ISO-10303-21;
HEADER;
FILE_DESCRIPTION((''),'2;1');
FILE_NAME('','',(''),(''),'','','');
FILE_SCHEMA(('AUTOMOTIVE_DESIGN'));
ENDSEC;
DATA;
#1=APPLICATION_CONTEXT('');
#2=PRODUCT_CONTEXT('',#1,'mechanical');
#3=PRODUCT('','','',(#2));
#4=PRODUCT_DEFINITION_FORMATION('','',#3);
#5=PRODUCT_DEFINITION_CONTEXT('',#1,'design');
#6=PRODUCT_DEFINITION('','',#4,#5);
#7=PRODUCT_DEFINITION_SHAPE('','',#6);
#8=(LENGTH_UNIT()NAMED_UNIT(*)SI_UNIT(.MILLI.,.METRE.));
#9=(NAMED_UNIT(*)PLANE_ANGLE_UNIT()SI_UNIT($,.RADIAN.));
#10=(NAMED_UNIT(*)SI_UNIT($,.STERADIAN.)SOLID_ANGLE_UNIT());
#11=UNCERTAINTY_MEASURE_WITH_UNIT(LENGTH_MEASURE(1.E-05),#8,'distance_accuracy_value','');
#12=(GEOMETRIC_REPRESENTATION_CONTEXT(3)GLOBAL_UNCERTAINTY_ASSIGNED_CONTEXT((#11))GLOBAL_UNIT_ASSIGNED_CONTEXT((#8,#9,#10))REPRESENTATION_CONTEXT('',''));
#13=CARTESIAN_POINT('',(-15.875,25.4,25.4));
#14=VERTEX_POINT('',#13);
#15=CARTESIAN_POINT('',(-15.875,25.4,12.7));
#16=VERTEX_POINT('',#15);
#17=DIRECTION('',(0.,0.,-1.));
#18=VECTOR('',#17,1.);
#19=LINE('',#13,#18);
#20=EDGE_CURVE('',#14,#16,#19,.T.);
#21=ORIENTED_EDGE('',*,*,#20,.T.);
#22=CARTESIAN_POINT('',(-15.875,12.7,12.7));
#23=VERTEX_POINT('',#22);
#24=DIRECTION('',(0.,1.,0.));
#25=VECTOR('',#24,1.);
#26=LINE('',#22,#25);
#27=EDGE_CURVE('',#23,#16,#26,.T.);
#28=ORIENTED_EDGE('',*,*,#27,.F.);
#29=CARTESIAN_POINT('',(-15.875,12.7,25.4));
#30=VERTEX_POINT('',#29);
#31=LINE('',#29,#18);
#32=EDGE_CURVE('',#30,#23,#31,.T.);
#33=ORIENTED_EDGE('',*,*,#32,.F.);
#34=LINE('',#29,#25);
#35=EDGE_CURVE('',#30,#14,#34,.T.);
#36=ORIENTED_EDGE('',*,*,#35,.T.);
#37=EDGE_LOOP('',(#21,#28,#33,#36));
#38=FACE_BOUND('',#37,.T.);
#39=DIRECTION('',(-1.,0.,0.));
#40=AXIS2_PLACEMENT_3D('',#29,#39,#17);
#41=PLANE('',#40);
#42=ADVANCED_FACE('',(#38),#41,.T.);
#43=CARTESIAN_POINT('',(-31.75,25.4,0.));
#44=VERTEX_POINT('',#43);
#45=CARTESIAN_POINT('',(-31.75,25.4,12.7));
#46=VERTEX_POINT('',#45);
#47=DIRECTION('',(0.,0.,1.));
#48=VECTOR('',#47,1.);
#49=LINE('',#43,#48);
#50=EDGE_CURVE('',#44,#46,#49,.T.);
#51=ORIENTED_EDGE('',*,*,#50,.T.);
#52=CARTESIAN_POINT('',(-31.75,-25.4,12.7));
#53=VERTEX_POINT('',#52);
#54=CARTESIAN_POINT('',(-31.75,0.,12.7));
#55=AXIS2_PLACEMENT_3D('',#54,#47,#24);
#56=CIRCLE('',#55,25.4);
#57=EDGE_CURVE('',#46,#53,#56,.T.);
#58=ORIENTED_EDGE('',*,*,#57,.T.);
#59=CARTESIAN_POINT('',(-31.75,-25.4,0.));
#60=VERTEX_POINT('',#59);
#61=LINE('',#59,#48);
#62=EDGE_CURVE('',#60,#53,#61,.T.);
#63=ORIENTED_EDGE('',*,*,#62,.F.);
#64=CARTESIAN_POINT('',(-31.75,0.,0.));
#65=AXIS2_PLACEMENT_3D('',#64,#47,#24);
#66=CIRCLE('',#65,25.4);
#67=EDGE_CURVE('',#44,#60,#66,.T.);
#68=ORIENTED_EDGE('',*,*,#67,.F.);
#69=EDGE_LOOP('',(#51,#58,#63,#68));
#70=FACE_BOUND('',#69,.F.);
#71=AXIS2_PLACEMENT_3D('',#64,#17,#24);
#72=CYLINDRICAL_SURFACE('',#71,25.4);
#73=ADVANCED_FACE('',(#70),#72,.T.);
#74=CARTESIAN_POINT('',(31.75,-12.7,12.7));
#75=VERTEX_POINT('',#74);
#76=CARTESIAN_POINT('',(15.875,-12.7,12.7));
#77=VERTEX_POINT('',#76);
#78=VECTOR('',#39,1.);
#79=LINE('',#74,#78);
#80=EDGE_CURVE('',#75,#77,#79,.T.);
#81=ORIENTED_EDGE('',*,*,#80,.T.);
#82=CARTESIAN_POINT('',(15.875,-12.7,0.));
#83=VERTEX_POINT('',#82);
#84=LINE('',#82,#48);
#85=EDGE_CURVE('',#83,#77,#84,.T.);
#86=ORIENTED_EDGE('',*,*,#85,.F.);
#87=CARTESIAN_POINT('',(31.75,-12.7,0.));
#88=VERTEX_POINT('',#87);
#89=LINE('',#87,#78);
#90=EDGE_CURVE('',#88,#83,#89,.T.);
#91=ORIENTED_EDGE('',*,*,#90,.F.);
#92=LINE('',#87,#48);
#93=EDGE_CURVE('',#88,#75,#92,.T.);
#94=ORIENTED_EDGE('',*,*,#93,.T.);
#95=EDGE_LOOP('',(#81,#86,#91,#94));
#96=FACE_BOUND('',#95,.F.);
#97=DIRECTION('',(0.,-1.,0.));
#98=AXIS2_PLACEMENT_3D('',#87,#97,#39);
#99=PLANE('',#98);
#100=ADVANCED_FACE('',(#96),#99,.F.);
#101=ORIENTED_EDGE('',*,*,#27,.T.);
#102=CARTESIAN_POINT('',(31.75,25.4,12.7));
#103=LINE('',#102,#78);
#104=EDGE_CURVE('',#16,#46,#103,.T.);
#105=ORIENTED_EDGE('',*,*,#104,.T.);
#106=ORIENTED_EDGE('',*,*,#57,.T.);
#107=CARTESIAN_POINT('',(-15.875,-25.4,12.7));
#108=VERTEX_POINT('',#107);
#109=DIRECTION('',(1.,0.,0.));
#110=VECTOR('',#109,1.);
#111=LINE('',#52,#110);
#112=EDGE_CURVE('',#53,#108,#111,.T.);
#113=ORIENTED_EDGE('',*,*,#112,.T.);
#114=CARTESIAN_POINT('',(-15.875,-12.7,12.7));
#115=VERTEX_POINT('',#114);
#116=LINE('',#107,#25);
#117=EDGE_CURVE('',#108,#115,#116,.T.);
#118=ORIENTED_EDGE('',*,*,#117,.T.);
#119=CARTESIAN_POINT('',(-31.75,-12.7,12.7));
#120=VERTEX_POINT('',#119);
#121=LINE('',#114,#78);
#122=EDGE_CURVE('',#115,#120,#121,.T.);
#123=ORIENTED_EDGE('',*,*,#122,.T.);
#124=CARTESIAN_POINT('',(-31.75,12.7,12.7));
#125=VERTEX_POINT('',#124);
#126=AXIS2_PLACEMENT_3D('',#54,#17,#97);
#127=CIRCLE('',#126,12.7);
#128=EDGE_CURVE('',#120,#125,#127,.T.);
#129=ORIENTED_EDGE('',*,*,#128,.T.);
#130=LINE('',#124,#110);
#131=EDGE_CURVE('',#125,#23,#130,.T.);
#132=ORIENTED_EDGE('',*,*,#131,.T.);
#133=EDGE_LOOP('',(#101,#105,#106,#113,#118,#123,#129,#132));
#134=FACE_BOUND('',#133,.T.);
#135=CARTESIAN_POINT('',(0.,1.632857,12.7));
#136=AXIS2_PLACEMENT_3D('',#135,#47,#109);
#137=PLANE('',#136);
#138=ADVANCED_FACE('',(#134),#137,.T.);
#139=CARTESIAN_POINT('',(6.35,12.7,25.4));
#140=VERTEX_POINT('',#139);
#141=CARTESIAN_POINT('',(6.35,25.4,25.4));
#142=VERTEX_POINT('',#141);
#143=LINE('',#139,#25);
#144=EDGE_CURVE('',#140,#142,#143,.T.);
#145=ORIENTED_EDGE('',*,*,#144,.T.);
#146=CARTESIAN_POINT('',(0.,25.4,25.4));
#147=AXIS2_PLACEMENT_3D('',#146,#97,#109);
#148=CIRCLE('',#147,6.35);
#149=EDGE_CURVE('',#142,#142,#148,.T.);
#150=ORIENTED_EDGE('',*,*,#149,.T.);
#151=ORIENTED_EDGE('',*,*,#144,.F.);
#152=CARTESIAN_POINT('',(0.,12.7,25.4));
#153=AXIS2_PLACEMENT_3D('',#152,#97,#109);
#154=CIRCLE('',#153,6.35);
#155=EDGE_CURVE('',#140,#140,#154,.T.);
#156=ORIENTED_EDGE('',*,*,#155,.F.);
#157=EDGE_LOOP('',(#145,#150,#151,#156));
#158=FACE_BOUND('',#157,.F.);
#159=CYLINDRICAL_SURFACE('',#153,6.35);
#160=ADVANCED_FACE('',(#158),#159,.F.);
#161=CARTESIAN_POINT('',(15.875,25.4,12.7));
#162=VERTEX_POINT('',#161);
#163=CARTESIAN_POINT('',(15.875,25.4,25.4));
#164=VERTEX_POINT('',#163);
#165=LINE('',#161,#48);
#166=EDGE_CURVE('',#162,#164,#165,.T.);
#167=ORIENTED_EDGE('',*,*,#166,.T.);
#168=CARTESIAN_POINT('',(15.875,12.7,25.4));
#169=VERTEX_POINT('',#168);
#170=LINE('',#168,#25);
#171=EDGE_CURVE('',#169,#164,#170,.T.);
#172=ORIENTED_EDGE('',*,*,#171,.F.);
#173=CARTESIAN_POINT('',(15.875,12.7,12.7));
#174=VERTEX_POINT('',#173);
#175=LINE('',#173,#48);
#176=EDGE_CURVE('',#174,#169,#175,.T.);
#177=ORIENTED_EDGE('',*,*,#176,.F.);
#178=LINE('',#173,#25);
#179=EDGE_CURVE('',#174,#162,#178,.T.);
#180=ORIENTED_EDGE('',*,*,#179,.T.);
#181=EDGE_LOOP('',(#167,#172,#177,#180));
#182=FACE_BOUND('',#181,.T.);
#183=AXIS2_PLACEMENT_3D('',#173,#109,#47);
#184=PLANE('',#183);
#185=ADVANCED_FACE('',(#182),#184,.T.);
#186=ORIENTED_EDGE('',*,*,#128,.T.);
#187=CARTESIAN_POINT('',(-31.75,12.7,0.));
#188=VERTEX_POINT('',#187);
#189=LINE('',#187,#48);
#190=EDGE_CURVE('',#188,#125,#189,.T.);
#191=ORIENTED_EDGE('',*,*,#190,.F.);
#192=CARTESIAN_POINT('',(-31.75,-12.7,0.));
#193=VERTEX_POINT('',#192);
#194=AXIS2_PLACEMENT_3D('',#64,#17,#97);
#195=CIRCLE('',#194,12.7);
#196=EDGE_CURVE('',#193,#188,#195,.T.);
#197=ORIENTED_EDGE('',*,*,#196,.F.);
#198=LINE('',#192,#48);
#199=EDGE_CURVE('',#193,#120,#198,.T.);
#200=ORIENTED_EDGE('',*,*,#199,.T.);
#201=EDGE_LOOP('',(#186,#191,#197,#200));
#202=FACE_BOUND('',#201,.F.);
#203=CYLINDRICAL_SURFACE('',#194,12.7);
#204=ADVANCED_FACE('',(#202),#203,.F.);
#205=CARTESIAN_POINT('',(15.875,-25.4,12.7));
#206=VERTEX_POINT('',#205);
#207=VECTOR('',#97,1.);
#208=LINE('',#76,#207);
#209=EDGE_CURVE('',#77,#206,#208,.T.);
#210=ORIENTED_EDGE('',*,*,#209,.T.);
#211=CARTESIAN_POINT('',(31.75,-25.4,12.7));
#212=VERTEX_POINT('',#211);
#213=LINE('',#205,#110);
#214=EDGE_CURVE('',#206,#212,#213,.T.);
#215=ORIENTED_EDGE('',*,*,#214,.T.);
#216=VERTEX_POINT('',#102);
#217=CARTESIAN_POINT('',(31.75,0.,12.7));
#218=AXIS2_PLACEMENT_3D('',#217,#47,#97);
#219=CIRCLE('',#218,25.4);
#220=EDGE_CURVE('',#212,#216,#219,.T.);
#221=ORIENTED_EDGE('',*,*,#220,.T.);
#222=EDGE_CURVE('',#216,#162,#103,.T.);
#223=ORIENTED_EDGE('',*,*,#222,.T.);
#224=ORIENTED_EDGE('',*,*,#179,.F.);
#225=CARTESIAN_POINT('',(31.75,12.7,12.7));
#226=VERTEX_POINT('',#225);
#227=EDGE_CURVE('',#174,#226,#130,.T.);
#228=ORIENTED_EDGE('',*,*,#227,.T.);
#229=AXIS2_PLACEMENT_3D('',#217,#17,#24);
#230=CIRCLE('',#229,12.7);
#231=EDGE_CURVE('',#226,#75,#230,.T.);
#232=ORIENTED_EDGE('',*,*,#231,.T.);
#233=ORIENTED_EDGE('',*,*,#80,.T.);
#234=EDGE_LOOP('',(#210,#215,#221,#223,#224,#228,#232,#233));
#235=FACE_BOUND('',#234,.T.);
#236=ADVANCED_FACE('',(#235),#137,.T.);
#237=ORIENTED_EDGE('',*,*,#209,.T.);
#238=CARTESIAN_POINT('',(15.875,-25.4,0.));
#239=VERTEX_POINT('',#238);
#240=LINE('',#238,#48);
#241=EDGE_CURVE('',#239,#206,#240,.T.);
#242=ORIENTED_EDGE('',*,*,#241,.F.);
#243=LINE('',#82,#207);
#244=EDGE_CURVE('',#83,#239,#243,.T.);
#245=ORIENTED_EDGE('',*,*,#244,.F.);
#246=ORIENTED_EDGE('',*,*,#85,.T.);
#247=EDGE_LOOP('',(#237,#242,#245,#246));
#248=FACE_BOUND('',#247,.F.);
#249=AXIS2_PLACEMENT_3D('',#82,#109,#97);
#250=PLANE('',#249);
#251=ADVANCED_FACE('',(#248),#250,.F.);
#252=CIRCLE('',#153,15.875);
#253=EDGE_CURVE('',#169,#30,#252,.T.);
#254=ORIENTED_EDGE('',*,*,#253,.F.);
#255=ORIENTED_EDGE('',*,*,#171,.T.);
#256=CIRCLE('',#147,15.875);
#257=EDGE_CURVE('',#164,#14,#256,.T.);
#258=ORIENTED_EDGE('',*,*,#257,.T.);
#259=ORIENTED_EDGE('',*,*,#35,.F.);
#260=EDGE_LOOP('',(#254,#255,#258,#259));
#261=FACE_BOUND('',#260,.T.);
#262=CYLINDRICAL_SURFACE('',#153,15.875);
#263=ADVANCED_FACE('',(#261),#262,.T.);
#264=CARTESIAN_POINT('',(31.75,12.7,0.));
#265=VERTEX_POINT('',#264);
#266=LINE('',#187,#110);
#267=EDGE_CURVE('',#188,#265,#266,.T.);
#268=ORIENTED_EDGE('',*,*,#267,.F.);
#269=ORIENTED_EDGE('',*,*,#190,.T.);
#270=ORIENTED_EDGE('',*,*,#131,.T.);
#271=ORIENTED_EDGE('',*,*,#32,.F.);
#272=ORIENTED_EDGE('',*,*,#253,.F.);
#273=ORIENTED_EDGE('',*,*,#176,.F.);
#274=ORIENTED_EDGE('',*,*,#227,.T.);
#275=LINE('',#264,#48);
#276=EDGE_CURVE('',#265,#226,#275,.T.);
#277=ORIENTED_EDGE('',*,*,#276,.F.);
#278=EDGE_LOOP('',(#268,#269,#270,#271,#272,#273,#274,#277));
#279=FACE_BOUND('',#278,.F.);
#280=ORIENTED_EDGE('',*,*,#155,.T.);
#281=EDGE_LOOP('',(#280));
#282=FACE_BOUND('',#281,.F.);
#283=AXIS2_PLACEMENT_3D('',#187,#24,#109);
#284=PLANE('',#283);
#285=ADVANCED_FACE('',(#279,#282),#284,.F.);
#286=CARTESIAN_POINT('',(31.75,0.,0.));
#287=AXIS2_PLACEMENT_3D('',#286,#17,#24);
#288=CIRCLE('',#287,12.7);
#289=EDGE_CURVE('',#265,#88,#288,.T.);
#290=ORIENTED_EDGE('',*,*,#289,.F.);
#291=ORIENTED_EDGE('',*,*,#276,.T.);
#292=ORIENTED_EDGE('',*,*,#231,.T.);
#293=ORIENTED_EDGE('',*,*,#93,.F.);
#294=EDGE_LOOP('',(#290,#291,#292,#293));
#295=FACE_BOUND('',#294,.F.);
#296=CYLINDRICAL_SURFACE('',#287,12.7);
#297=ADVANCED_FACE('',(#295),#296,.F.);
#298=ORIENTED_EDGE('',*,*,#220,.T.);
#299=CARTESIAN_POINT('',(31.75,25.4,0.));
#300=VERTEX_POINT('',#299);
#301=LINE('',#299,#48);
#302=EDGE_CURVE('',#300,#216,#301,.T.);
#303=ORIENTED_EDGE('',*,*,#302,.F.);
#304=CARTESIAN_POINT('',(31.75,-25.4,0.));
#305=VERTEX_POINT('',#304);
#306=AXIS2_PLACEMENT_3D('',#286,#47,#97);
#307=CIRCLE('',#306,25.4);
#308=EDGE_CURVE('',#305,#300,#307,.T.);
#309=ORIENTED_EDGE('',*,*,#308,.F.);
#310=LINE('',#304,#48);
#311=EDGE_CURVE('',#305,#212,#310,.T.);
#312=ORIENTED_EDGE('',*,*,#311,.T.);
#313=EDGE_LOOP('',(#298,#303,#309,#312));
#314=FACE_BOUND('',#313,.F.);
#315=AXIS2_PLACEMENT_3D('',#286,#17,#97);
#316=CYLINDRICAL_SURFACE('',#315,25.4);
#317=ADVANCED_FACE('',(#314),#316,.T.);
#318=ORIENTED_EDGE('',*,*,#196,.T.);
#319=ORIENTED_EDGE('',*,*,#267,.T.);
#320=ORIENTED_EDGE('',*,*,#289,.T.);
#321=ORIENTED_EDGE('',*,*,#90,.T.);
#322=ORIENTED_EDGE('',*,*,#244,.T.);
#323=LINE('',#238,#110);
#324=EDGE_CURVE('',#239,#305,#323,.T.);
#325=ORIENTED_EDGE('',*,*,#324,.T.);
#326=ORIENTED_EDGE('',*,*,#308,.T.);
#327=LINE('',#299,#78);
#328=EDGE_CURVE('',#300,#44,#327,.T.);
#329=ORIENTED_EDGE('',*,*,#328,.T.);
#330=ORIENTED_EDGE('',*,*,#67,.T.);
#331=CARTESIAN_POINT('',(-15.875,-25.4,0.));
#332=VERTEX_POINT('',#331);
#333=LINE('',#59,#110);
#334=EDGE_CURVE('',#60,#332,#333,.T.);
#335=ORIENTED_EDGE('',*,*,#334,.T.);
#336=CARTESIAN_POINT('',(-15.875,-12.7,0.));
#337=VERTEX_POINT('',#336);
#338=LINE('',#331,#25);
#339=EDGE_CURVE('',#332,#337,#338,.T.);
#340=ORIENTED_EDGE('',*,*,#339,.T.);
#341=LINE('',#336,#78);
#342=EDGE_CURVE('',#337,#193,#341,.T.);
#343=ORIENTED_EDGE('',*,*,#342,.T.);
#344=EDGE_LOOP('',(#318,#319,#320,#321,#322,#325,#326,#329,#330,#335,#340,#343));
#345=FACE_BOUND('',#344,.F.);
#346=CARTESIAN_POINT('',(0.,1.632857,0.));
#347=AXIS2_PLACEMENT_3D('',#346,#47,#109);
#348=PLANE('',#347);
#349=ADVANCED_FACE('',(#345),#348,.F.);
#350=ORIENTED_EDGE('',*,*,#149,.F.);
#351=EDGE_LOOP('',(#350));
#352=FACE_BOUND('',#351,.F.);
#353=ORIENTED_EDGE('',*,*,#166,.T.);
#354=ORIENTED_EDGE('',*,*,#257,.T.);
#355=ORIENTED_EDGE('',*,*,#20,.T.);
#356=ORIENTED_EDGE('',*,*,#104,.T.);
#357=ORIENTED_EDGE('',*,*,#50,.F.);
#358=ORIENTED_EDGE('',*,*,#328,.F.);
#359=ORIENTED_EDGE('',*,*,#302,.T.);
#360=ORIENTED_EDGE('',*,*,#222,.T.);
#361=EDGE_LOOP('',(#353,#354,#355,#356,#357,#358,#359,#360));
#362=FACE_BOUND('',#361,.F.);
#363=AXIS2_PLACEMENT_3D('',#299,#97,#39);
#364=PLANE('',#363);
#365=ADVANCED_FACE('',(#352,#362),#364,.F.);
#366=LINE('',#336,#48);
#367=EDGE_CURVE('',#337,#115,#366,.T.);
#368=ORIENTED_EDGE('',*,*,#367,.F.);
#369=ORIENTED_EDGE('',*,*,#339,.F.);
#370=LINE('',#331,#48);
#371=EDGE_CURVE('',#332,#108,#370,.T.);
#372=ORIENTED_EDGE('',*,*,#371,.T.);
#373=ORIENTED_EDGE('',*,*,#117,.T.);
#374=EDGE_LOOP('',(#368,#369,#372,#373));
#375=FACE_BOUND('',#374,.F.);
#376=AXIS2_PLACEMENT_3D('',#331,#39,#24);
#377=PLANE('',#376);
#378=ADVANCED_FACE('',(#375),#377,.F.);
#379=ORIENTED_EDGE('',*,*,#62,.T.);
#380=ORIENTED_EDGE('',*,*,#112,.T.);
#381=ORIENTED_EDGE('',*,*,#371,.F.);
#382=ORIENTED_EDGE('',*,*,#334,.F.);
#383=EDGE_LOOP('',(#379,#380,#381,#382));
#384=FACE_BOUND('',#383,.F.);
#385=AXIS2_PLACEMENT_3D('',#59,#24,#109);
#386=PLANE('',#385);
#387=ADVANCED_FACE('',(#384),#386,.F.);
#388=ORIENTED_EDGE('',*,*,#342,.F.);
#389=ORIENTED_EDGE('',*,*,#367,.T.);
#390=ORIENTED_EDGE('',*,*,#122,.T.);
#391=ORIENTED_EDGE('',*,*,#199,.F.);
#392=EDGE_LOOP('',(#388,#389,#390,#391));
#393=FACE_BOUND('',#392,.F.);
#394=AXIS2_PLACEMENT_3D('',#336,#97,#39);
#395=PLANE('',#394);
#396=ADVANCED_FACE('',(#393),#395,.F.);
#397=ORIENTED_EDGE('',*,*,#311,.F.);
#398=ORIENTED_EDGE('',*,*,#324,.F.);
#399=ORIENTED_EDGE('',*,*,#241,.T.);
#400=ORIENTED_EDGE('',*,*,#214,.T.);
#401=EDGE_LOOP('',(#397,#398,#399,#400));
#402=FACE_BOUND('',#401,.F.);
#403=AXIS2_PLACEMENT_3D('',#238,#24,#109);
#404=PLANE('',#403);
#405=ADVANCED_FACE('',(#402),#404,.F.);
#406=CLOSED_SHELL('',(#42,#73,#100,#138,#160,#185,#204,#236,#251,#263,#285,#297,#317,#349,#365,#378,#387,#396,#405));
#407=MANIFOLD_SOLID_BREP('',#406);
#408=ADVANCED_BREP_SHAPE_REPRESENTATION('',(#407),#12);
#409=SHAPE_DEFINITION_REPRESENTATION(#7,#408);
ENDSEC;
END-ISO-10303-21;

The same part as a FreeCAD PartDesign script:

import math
import FreeCAD as App
import Part
import Sketcher

V = App.Vector
Q = App.Units.Quantity

doc = App.newDocument("Part")
body = doc.addObject("PartDesign::Body", "Body")

# Sketch on XY plane
sketch1 = body.newObject("Sketcher::SketchObject", "Sketch")
sketch1.AttachmentSupport = (doc.getObject("XY_Plane"), [""])
sketch1.MapMode = "FlatFace"
sketch1.addGeometry([
    Part.LineSegment(V(15.875, -25.4, 0), V(31.75, -25.4, 0)),  # 0
    Part.ArcOfCircle(Part.Circle(V(31.75, 0, 0), V(0, 0, 1), 25.4), math.radians(-90), math.radians(90)),  # 1
    Part.LineSegment(V(31.75, 25.4, 0), V(-31.75, 25.4, 0)),  # 2
    Part.ArcOfCircle(Part.Circle(V(-31.75, 0, 0), V(0, 0, 1), 25.4), math.radians(90), math.radians(270)),  # 3
    Part.LineSegment(V(-31.75, -25.4, 0), V(-15.875, -25.4, 0)),  # 4
    Part.LineSegment(V(-15.875, -25.4, 0), V(-15.875, -12.7, 0)),  # 5
    Part.LineSegment(V(-15.875, -12.7, 0), V(-31.75, -12.7, 0)),  # 6
    Part.ArcOfCircle(Part.Circle(V(-31.75, 0, 0), V(0, 0, 1), 12.7), math.radians(90), math.radians(270)),  # 7
    Part.LineSegment(V(-31.75, 12.7, 0), V(31.75, 12.7, 0)),  # 8
    Part.ArcOfCircle(Part.Circle(V(31.75, 0, 0), V(0, 0, 1), 12.7), math.radians(-90), math.radians(90)),  # 9
    Part.LineSegment(V(31.75, -12.7, 0), V(15.875, -12.7, 0)),  # 10
    Part.LineSegment(V(15.875, -12.7, 0), V(15.875, -25.4, 0)),  # 11
], False)
sketch1.addConstraint([
    Sketcher.Constraint("Tangent", 0, 2, 1, 1),
    Sketcher.Constraint("Tangent", 1, 2, 2, 1),
    Sketcher.Constraint("Tangent", 2, 2, 3, 1),
    Sketcher.Constraint("Tangent", 3, 2, 4, 1),
    Sketcher.Constraint("Coincident", 4, 2, 5, 1),
    Sketcher.Constraint("Coincident", 5, 2, 6, 1),
    Sketcher.Constraint("Tangent", 6, 2, 7, 2),
    Sketcher.Constraint("Tangent", 7, 1, 8, 1),
    Sketcher.Constraint("Tangent", 8, 2, 9, 2),
    Sketcher.Constraint("Tangent", 9, 1, 10, 1),
    Sketcher.Constraint("Coincident", 10, 2, 11, 1),
    Sketcher.Constraint("Coincident", 11, 2, 0, 1),
    Sketcher.Constraint("Horizontal", 0),
    Sketcher.Constraint("Horizontal", 2),
    Sketcher.Constraint("Horizontal", 4),
    Sketcher.Constraint("Vertical", 5),
    Sketcher.Constraint("Horizontal", 6),
    Sketcher.Constraint("Horizontal", 8),
    Sketcher.Constraint("Horizontal", 10),
    Sketcher.Constraint("Vertical", 11),
    Sketcher.Constraint("Coincident", 7, 3, 3, 3),
    Sketcher.Constraint("Coincident", 9, 3, 1, 3),
    Sketcher.Constraint("Equal", 1, 3),
    Sketcher.Constraint("Symmetric", 1, 3, 3, 3, -1, 1),
    Sketcher.Constraint("Equal", 0, 4),
    Sketcher.Constraint("Radius", 1, Q("1 in")),
    Sketcher.Constraint("Radius", 7, Q("0.5 in")),
    Sketcher.Constraint("DistanceX", 2, 2, 2, 1, Q("2.5 in")),
    Sketcher.Constraint("DistanceX", 0, 1, 0, 2, Q("0.625 in")),
])
pad1 = body.newObject("PartDesign::Pad", "Pad")
pad1.Profile = sketch1
pad1.Length = Q("0.5 in")

# Sketch on XZ plane
sketch2 = body.newObject("Sketcher::SketchObject", "Sketch001")
sketch2.AttachmentSupport = (doc.getObject("XZ_Plane"), [""])
sketch2.MapMode = "FlatFace"
sketch2.AttachmentOffset = App.Placement(V(0, 0, -0.5 * 25.4), App.Rotation())
sketch2.addGeometry([
    Part.LineSegment(V(15.875, 12.7, 0), V(15.875, 25.4, 0)),  # 0
    Part.ArcOfCircle(Part.Circle(V(0, 25.4, 0), V(0, 0, 1), 15.875), math.radians(0), math.radians(180)),  # 1
    Part.LineSegment(V(-15.875, 25.4, 0), V(-15.875, 12.7, 0)),  # 2
    Part.LineSegment(V(-15.875, 12.7, 0), V(15.875, 12.7, 0)),  # 3
    Part.Circle(V(0, 25.4, 0), V(0, 0, 1), 6.35),  # 4
], False)
sketch2.addConstraint([
    Sketcher.Constraint("Tangent", 0, 2, 1, 1),
    Sketcher.Constraint("Tangent", 1, 2, 2, 1),
    Sketcher.Constraint("Coincident", 2, 2, 3, 1),
    Sketcher.Constraint("Coincident", 3, 2, 0, 1),
    Sketcher.Constraint("Vertical", 0),
    Sketcher.Constraint("Vertical", 2),
    Sketcher.Constraint("Horizontal", 3),
    Sketcher.Constraint("Coincident", 4, 3, 1, 3),
    Sketcher.Constraint("PointOnObject", 1, 3, -2),
    Sketcher.Constraint("Diameter", 4, Q("0.5 in")),
    Sketcher.Constraint("DistanceY", 0, 1, 0, 2, Q("0.5 in")),
    Sketcher.Constraint("DistanceY", -1, 1, 1, 3, Q("1 in")),
    Sketcher.Constraint("Radius", 1, Q("0.625 in")),
])
pad2 = body.newObject("PartDesign::Pad", "Pad001")
pad2.Profile = sketch2
pad2.Length = Q("0.5 in")
pad2.Reversed = True

doc.recompute()
